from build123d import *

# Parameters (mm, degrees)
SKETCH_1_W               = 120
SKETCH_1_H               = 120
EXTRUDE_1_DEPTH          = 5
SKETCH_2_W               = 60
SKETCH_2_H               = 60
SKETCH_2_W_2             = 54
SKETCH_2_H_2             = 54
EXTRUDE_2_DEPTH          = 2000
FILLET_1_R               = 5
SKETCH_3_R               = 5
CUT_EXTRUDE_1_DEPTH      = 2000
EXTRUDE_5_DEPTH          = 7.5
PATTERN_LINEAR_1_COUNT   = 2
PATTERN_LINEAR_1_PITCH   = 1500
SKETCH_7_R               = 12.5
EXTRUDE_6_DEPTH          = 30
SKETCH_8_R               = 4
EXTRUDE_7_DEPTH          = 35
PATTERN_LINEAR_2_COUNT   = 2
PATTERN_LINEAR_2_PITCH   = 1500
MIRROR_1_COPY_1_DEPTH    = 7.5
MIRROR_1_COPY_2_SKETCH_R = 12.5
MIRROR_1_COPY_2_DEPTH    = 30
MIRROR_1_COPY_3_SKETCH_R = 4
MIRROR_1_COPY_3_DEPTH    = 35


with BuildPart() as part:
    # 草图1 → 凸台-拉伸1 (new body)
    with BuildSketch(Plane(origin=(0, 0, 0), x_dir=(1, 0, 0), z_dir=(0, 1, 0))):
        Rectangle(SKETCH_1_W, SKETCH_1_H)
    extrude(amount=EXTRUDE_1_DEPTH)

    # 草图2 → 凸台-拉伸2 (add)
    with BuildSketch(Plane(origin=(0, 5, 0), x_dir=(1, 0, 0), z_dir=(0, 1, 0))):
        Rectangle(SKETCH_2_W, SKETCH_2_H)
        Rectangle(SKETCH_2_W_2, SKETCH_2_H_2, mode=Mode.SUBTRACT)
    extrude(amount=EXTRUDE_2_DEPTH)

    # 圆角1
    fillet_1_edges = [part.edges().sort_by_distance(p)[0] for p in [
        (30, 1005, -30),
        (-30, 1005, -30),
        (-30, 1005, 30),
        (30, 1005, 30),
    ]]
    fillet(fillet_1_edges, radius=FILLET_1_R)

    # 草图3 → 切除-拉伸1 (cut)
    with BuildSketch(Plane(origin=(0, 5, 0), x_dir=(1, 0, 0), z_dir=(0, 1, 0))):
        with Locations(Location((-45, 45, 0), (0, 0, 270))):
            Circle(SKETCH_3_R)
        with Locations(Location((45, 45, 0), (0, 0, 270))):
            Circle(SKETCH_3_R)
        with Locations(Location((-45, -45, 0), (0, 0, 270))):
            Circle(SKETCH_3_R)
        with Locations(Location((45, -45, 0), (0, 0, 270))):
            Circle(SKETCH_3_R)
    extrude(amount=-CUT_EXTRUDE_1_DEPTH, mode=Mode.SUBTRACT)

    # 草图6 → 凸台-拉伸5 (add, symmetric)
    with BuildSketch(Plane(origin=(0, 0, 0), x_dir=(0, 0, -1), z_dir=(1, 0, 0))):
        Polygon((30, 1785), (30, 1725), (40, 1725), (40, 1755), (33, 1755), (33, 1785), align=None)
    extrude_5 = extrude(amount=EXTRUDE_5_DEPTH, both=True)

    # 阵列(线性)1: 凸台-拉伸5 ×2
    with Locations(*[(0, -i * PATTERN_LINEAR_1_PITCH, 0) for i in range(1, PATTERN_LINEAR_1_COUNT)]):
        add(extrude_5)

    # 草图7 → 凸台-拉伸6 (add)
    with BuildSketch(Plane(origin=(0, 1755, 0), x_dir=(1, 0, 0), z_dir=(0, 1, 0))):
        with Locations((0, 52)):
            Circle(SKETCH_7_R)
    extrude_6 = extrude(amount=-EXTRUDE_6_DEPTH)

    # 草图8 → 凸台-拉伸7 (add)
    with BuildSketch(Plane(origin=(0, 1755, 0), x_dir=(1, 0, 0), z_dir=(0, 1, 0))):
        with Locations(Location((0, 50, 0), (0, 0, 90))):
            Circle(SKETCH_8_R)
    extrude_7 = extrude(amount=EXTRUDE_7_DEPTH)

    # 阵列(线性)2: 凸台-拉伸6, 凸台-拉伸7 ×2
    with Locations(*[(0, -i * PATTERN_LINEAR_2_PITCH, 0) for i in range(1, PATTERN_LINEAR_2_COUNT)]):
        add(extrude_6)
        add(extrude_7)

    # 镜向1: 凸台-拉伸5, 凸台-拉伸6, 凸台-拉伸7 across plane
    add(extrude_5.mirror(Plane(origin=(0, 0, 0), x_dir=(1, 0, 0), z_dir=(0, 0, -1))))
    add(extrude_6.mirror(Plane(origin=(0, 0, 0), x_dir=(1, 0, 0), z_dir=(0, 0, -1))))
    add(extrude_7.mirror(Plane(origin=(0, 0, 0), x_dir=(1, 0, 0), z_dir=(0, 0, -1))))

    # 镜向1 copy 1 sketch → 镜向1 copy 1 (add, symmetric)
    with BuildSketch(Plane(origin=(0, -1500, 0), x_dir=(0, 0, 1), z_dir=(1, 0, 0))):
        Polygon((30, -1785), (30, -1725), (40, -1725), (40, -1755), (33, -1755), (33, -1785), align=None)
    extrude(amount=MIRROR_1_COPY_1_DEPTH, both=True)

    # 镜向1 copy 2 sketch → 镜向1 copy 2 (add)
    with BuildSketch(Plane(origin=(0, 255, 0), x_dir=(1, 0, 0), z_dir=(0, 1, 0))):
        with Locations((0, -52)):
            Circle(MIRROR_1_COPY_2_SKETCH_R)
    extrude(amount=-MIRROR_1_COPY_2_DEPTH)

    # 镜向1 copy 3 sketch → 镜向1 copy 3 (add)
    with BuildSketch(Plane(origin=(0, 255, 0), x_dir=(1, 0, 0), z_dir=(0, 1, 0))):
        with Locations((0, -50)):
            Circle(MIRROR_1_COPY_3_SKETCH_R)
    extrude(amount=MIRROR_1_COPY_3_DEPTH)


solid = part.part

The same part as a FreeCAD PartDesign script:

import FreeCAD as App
import Part
import Sketcher


def edges_at(feature, points):
    """Names of the edges that pass closest to the given points."""
    edges = feature.Shape.Edges
    near = lambda p: min(range(len(edges)), key=lambda i: edges[i].distToShape(Part.Vertex(*p))[0])
    return sorted({f"Edge{near(p) + 1}" for p in points})

doc = App.newDocument("Part")
body = doc.addObject("PartDesign::Body", "Body")

# Sketch on XZ plane
sketch1 = body.newObject("Sketcher::SketchObject", "Sketch")
sketch1.AttachmentSupport = (doc.getObject("XZ_Plane"), [""])
sketch1.MapMode = "FlatFace"
sketch1.addGeometry([
    Part.LineSegment(App.Vector(-60, -60, 0), App.Vector(-60, 60, 0)),
    Part.LineSegment(App.Vector(-60, 60, 0), App.Vector(60, 60, 0)),
    Part.LineSegment(App.Vector(60, 60, 0), App.Vector(60, -60, 0)),
    Part.LineSegment(App.Vector(60, -60, 0), App.Vector(-60, -60, 0)),
], False)
sketch1.addConstraint([
    Sketcher.Constraint("Coincident", 0, 2, 1, 1),
    Sketcher.Constraint("Coincident", 1, 2, 2, 1),
    Sketcher.Constraint("Coincident", 2, 2, 3, 1),
    Sketcher.Constraint("Coincident", 3, 2, 0, 1),
    Sketcher.Constraint("Vertical", 0),
    Sketcher.Constraint("Horizontal", 1),
    Sketcher.Constraint("Vertical", 2),
    Sketcher.Constraint("Horizontal", 3),
    Sketcher.Constraint("Symmetric", 0, 2, 2, 2, -1, 1),
    Sketcher.Constraint("Equal", 3, 0),
    Sketcher.Constraint("DistanceX", 1, 1, 1, 2, 120.0),
])
pad1 = body.newObject("PartDesign::Pad", "Pad")
pad1.Profile = sketch1
pad1.Length = 5
pad1.Reversed = True

# Sketch on XZ plane
sketch2 = body.newObject("Sketcher::SketchObject", "Sketch001")
sketch2.AttachmentSupport = (doc.getObject("XZ_Plane"), [""])
sketch2.MapMode = "FlatFace"
sketch2.AttachmentOffset = App.Placement(App.Vector(0, 0, -5), App.Rotation())
sketch2.addGeometry([
    Part.LineSegment(App.Vector(-30, -30, 0), App.Vector(-30, 30, 0)),  # 0
    Part.LineSegment(App.Vector(-30, 30, 0), App.Vector(30, 30, 0)),  # 1
    Part.LineSegment(App.Vector(30, 30, 0), App.Vector(30, -30, 0)),  # 2
    Part.LineSegment(App.Vector(30, -30, 0), App.Vector(-30, -30, 0)),  # 3
    Part.LineSegment(App.Vector(27, 27, 0), App.Vector(-27, 27, 0)),  # 4
    Part.LineSegment(App.Vector(-27, 27, 0), App.Vector(-27, -27, 0)),  # 5
    Part.LineSegment(App.Vector(-27, -27, 0), App.Vector(27, -27, 0)),  # 6
    Part.LineSegment(App.Vector(27, -27, 0), App.Vector(27, 27, 0)),  # 7
], False)
sketch2.addConstraint([
    Sketcher.Constraint("Coincident", 0, 2, 1, 1),
    Sketcher.Constraint("Coincident", 1, 2, 2, 1),
    Sketcher.Constraint("Coincident", 2, 2, 3, 1),
    Sketcher.Constraint("Coincident", 3, 2, 0, 1),
    Sketcher.Constraint("Coincident", 4, 2, 5, 1),
    Sketcher.Constraint("Coincident", 5, 2, 6, 1),
    Sketcher.Constraint("Coincident", 6, 2, 7, 1),
    Sketcher.Constraint("Coincident", 7, 2, 4, 1),
    Sketcher.Constraint("Vertical", 0),
    Sketcher.Constraint("Horizontal", 1),
    Sketcher.Constraint("Vertical", 2),
    Sketcher.Constraint("Horizontal", 3),
    Sketcher.Constraint("Horizontal", 4),
    Sketcher.Constraint("Vertical", 5),
    Sketcher.Constraint("Horizontal", 6),
    Sketcher.Constraint("Vertical", 7),
    Sketcher.Constraint("Symmetric", 0, 2, 2, 2, -1, 1),
    Sketcher.Constraint("Symmetric", 4, 2, 6, 2, -1, 1),
    Sketcher.Constraint("Equal", 3, 0),
    Sketcher.Constraint("Equal", 6, 5),
    Sketcher.Constraint("DistanceX", 1, 1, 1, 2, 60.0),
    Sketcher.Constraint("DistanceX", 4, 2, 4, 1, 54.0),
])
pad2 = body.newObject("PartDesign::Pad", "Pad001")
pad2.Profile = sketch2
pad2.Length = 2000
pad2.Reversed = True
doc.recompute()

fillet = body.newObject("PartDesign::Fillet", "Fillet")
fillet.Base = (pad2, edges_at(pad2, [
    (30, 1005, -30),
    (-30, 1005, -30),
    (-30, 1005, 30),
    (30, 1005, 30),
]))
fillet.Radius = 5

# Sketch on XZ plane
sketch3 = body.newObject("Sketcher::SketchObject", "Sketch002")
sketch3.AttachmentSupport = (doc.getObject("XZ_Plane"), [""])
sketch3.MapMode = "FlatFace"
sketch3.AttachmentOffset = App.Placement(App.Vector(0, 0, -5), App.Rotation())
sketch3.addGeometry([
    Part.Circle(App.Vector(-45, -45, 0), App.Vector(0, 0, 1), 5),
    Part.Circle(App.Vector(45, -45, 0), App.Vector(0, 0, 1), 5),
    Part.Circle(App.Vector(-45, 45, 0), App.Vector(0, 0, 1), 5),
    Part.Circle(App.Vector(45, 45, 0), App.Vector(0, 0, 1), 5),
], False)
sketch3.addConstraint([
    Sketcher.Constraint("Equal", 0, 1),
    Sketcher.Constraint("Equal", 1, 2),
    Sketcher.Constraint("Equal", 2, 3),
    Sketcher.Constraint("Symmetric", 1, 3, 2, 3, -1, 1),
    Sketcher.Constraint("Symmetric", 0, 3, 3, 3, -1, 1),
    Sketcher.Constraint("Symmetric", 0, 3, 1, 3, -2),
    Sketcher.Constraint("Diameter", 0, 10.0),
    Sketcher.Constraint("DistanceX", 0, 3, -1, 1, 45.0),
    Sketcher.Constraint("DistanceY", 0, 3, -1, 1, 45.0),
])
pocket1 = body.newObject("PartDesign::Pocket", "Pocket")
pocket1.Profile = sketch3
pocket1.Length = 2000
pocket1.Reversed = True

# Sketch on YZ plane
sketch4 = body.newObject("Sketcher::SketchObject", "Sketch003")
sketch4.AttachmentSupport = (doc.getObject("YZ_Plane"), [""])
sketch4.MapMode = "FlatFace"
sketch4.addGeometry([
    Part.LineSegment(App.Vector(1785, -30, 0), App.Vector(1725, -30, 0)),  # 0
    Part.LineSegment(App.Vector(1725, -30, 0), App.Vector(1725, -40, 0)),  # 1
    Part.LineSegment(App.Vector(1725, -40, 0), App.Vector(1755, -40, 0)),  # 2
    Part.LineSegment(App.Vector(1755, -40, 0), App.Vector(1755, -33, 0)),  # 3
    Part.LineSegment(App.Vector(1755, -33, 0), App.Vector(1785, -33, 0)),  # 4
    Part.LineSegment(App.Vector(1785, -33, 0), App.Vector(1785, -30, 0)),  # 5
], False)
sketch4.addConstraint([
    Sketcher.Constraint("Coincident", 0, 2, 1, 1),
    Sketcher.Constraint("Coincident", 1, 2, 2, 1),
    Sketcher.Constraint("Coincident", 2, 2, 3, 1),
    Sketcher.Constraint("Coincident", 3, 2, 4, 1),
    Sketcher.Constraint("Coincident", 4, 2, 5, 1),
    Sketcher.Constraint("Coincident", 5, 2, 0, 1),
    Sketcher.Constraint("Horizontal", 0),
    Sketcher.Constraint("Vertical", 1),
    Sketcher.Constraint("Horizontal", 2),
    Sketcher.Constraint("Vertical", 3),
    Sketcher.Constraint("Horizontal", 4),
    Sketcher.Constraint("Vertical", 5),
    Sketcher.Constraint("Equal", 2, 4),
    Sketcher.Constraint("DistanceX", 0, 2, 0, 1, 60.0),
    Sketcher.Constraint("DistanceY", 1, 2, 1, 1, 10.0),
    Sketcher.Constraint("DistanceY", 3, 1, 3, 2, 7.0),
    Sketcher.Constraint("DistanceX", -1, 1, 0, 2, 1725.0),
    Sketcher.Constraint("DistanceY", 0, 2, -1, 1, 30.0),
])
pad3 = body.newObject("PartDesign::Pad", "Pad002")
pad3.Profile = sketch4
pad3.Length = 15
pad3.Midplane = True
doc.recompute()

linearpattern = body.newObject("PartDesign::LinearPattern", "LinearPattern")
linearpattern.Originals = [pad3]
linearpattern.Direction = (doc.getObject("Y_Axis"), [""])
linearpattern.Mode = "offset"
linearpattern.Offset = 1500
linearpattern.Occurrences = 2
linearpattern.Reversed = True
body.Tip = linearpattern

# Sketch on XZ plane
sketch5 = body.newObject("Sketcher::SketchObject", "Sketch004")
sketch5.AttachmentSupport = (doc.getObject("XZ_Plane"), [""])
sketch5.MapMode = "FlatFace"
sketch5.AttachmentOffset = App.Placement(App.Vector(0, 0, -1755), App.Rotation())
sketch5.addGeometry(Part.Circle(App.Vector(0, -52, 0), App.Vector(0, 0, 1), 12), False)
sketch5.addConstraint([
    Sketcher.Constraint("PointOnObject", 0, 3, -2),
    Sketcher.Constraint("Diameter", 0, 25.0),
    Sketcher.Constraint("DistanceY", 0, 3, -1, 1, 52.0),
])
pad4 = body.newObject("PartDesign::Pad", "Pad003")
pad4.Profile = sketch5
pad4.Length = 30

# Sketch on XZ plane
sketch6 = body.newObject("Sketcher::SketchObject", "Sketch005")
sketch6.AttachmentSupport = (doc.getObject("XZ_Plane"), [""])
sketch6.MapMode = "FlatFace"
sketch6.AttachmentOffset = App.Placement(App.Vector(0, 0, -1755), App.Rotation())
sketch6.addGeometry(Part.Circle(App.Vector(0, -50, 0), App.Vector(0, 0, 1), 4), False)
sketch6.addConstraint([
    Sketcher.Constraint("PointOnObject", 0, 3, -2),
    Sketcher.Constraint("Diameter", 0, 8.0),
    Sketcher.Constraint("DistanceY", 0, 3, -1, 1, 50.0),
])
pad5 = body.newObject("PartDesign::Pad", "Pad004")
pad5.Profile = sketch6
pad5.Length = 35
pad5.Reversed = True
doc.recompute()

linearpattern2 = body.newObject("PartDesign::LinearPattern", "LinearPattern001")
linearpattern2.Originals = [pad4, pad5]
linearpattern2.Direction = (doc.getObject("Y_Axis"), [""])
linearpattern2.Mode = "offset"
linearpattern2.Offset = 1500
linearpattern2.Occurrences = 2
linearpattern2.Reversed = True
body.Tip = linearpattern2
doc.recompute()

mirrored = body.newObject("PartDesign::Mirrored", "Mirrored")
mirrored.Originals = [pad3, pad4, pad5]
mirrored.MirrorPlane = (doc.getObject("XY_Plane"), [""])
body.Tip = mirrored

# Sketch on YZ plane
sketch7 = body.newObject("Sketcher::SketchObject", "Sketch006")
sketch7.AttachmentSupport = (doc.getObject("YZ_Plane"), [""])
sketch7.MapMode = "FlatFace"
sketch7.addGeometry([
    Part.LineSegment(App.Vector(225, 30, 0), App.Vector(285, 30, 0)),  # 0
    Part.LineSegment(App.Vector(285, 30, 0), App.Vector(285, 33, 0)),  # 1
    Part.LineSegment(App.Vector(285, 33, 0), App.Vector(255, 33, 0)),  # 2
    Part.LineSegment(App.Vector(255, 33, 0), App.Vector(255, 40, 0)),  # 3
    Part.LineSegment(App.Vector(255, 40, 0), App.Vector(225, 40, 0)),  # 4
    Part.LineSegment(App.Vector(225, 40, 0), App.Vector(225, 30, 0)),  # 5
], False)
sketch7.addConstraint([
    Sketcher.Constraint("Coincident", 0, 2, 1, 1),
    Sketcher.Constraint("Coincident", 1, 2, 2, 1),
    Sketcher.Constraint("Coincident", 2, 2, 3, 1),
    Sketcher.Constraint("Coincident", 3, 2, 4, 1),
    Sketcher.Constraint("Coincident", 4, 2, 5, 1),
    Sketcher.Constraint("Coincident", 5, 2, 0, 1),
    Sketcher.Constraint("Horizontal", 0),
    Sketcher.Constraint("Vertical", 1),
    Sketcher.Constraint("Horizontal", 2),
    Sketcher.Constraint("Vertical", 3),
    Sketcher.Constraint("Horizontal", 4),
    Sketcher.Constraint("Vertical", 5),
    Sketcher.Constraint("Equal", 2, 4),
    Sketcher.Constraint("DistanceX", 0, 1, 0, 2, 60.0),
    Sketcher.Constraint("DistanceY", 1, 1, 1, 2, 3.0),
    Sketcher.Constraint("DistanceY", 3, 1, 3, 2, 7.0),
    Sketcher.Constraint("DistanceX", -1, 1, 0, 2, 285.0),
    Sketcher.Constraint("DistanceY", -1, 1, 0, 2, 30.0),
])
pad6 = body.newObject("PartDesign::Pad", "Pad005")
pad6.Profile = sketch7
pad6.Length = 15
pad6.Midplane = True

# Sketch on XZ plane
sketch8 = body.newObject("Sketcher::SketchObject", "Sketch007")
sketch8.AttachmentSupport = (doc.getObject("XZ_Plane"), [""])
sketch8.MapMode = "FlatFace"
sketch8.AttachmentOffset = App.Placement(App.Vector(0, 0, -255), App.Rotation())
sketch8.addGeometry(Part.Circle(App.Vector(0, 52, 0), App.Vector(0, 0, 1), 12), False)
sketch8.addConstraint([
    Sketcher.Constraint("PointOnObject", 0, 3, -2),
    Sketcher.Constraint("Diameter", 0, 25.0),
    Sketcher.Constraint("DistanceY", -1, 1, 0, 3, 52.0),
])
pad7 = body.newObject("PartDesign::Pad", "Pad006")
pad7.Profile = sketch8
pad7.Length = 30

# Sketch on XZ plane
sketch9 = body.newObject("Sketcher::SketchObject", "Sketch008")
sketch9.AttachmentSupport = (doc.getObject("XZ_Plane"), [""])
sketch9.MapMode = "FlatFace"
sketch9.AttachmentOffset = App.Placement(App.Vector(0, 0, -255), App.Rotation())
sketch9.addGeometry(Part.Circle(App.Vector(0, 50, 0), App.Vector(0, 0, 1), 4), False)
sketch9.addConstraint([
    Sketcher.Constraint("PointOnObject", 0, 3, -2),
    Sketcher.Constraint("Diameter", 0, 8.0),
    Sketcher.Constraint("DistanceY", -1, 1, 0, 3, 50.0),
])
pad8 = body.newObject("PartDesign::Pad", "Pad007")
pad8.Profile = sketch9
pad8.Length = 35
pad8.Reversed = True

doc.recompute()
